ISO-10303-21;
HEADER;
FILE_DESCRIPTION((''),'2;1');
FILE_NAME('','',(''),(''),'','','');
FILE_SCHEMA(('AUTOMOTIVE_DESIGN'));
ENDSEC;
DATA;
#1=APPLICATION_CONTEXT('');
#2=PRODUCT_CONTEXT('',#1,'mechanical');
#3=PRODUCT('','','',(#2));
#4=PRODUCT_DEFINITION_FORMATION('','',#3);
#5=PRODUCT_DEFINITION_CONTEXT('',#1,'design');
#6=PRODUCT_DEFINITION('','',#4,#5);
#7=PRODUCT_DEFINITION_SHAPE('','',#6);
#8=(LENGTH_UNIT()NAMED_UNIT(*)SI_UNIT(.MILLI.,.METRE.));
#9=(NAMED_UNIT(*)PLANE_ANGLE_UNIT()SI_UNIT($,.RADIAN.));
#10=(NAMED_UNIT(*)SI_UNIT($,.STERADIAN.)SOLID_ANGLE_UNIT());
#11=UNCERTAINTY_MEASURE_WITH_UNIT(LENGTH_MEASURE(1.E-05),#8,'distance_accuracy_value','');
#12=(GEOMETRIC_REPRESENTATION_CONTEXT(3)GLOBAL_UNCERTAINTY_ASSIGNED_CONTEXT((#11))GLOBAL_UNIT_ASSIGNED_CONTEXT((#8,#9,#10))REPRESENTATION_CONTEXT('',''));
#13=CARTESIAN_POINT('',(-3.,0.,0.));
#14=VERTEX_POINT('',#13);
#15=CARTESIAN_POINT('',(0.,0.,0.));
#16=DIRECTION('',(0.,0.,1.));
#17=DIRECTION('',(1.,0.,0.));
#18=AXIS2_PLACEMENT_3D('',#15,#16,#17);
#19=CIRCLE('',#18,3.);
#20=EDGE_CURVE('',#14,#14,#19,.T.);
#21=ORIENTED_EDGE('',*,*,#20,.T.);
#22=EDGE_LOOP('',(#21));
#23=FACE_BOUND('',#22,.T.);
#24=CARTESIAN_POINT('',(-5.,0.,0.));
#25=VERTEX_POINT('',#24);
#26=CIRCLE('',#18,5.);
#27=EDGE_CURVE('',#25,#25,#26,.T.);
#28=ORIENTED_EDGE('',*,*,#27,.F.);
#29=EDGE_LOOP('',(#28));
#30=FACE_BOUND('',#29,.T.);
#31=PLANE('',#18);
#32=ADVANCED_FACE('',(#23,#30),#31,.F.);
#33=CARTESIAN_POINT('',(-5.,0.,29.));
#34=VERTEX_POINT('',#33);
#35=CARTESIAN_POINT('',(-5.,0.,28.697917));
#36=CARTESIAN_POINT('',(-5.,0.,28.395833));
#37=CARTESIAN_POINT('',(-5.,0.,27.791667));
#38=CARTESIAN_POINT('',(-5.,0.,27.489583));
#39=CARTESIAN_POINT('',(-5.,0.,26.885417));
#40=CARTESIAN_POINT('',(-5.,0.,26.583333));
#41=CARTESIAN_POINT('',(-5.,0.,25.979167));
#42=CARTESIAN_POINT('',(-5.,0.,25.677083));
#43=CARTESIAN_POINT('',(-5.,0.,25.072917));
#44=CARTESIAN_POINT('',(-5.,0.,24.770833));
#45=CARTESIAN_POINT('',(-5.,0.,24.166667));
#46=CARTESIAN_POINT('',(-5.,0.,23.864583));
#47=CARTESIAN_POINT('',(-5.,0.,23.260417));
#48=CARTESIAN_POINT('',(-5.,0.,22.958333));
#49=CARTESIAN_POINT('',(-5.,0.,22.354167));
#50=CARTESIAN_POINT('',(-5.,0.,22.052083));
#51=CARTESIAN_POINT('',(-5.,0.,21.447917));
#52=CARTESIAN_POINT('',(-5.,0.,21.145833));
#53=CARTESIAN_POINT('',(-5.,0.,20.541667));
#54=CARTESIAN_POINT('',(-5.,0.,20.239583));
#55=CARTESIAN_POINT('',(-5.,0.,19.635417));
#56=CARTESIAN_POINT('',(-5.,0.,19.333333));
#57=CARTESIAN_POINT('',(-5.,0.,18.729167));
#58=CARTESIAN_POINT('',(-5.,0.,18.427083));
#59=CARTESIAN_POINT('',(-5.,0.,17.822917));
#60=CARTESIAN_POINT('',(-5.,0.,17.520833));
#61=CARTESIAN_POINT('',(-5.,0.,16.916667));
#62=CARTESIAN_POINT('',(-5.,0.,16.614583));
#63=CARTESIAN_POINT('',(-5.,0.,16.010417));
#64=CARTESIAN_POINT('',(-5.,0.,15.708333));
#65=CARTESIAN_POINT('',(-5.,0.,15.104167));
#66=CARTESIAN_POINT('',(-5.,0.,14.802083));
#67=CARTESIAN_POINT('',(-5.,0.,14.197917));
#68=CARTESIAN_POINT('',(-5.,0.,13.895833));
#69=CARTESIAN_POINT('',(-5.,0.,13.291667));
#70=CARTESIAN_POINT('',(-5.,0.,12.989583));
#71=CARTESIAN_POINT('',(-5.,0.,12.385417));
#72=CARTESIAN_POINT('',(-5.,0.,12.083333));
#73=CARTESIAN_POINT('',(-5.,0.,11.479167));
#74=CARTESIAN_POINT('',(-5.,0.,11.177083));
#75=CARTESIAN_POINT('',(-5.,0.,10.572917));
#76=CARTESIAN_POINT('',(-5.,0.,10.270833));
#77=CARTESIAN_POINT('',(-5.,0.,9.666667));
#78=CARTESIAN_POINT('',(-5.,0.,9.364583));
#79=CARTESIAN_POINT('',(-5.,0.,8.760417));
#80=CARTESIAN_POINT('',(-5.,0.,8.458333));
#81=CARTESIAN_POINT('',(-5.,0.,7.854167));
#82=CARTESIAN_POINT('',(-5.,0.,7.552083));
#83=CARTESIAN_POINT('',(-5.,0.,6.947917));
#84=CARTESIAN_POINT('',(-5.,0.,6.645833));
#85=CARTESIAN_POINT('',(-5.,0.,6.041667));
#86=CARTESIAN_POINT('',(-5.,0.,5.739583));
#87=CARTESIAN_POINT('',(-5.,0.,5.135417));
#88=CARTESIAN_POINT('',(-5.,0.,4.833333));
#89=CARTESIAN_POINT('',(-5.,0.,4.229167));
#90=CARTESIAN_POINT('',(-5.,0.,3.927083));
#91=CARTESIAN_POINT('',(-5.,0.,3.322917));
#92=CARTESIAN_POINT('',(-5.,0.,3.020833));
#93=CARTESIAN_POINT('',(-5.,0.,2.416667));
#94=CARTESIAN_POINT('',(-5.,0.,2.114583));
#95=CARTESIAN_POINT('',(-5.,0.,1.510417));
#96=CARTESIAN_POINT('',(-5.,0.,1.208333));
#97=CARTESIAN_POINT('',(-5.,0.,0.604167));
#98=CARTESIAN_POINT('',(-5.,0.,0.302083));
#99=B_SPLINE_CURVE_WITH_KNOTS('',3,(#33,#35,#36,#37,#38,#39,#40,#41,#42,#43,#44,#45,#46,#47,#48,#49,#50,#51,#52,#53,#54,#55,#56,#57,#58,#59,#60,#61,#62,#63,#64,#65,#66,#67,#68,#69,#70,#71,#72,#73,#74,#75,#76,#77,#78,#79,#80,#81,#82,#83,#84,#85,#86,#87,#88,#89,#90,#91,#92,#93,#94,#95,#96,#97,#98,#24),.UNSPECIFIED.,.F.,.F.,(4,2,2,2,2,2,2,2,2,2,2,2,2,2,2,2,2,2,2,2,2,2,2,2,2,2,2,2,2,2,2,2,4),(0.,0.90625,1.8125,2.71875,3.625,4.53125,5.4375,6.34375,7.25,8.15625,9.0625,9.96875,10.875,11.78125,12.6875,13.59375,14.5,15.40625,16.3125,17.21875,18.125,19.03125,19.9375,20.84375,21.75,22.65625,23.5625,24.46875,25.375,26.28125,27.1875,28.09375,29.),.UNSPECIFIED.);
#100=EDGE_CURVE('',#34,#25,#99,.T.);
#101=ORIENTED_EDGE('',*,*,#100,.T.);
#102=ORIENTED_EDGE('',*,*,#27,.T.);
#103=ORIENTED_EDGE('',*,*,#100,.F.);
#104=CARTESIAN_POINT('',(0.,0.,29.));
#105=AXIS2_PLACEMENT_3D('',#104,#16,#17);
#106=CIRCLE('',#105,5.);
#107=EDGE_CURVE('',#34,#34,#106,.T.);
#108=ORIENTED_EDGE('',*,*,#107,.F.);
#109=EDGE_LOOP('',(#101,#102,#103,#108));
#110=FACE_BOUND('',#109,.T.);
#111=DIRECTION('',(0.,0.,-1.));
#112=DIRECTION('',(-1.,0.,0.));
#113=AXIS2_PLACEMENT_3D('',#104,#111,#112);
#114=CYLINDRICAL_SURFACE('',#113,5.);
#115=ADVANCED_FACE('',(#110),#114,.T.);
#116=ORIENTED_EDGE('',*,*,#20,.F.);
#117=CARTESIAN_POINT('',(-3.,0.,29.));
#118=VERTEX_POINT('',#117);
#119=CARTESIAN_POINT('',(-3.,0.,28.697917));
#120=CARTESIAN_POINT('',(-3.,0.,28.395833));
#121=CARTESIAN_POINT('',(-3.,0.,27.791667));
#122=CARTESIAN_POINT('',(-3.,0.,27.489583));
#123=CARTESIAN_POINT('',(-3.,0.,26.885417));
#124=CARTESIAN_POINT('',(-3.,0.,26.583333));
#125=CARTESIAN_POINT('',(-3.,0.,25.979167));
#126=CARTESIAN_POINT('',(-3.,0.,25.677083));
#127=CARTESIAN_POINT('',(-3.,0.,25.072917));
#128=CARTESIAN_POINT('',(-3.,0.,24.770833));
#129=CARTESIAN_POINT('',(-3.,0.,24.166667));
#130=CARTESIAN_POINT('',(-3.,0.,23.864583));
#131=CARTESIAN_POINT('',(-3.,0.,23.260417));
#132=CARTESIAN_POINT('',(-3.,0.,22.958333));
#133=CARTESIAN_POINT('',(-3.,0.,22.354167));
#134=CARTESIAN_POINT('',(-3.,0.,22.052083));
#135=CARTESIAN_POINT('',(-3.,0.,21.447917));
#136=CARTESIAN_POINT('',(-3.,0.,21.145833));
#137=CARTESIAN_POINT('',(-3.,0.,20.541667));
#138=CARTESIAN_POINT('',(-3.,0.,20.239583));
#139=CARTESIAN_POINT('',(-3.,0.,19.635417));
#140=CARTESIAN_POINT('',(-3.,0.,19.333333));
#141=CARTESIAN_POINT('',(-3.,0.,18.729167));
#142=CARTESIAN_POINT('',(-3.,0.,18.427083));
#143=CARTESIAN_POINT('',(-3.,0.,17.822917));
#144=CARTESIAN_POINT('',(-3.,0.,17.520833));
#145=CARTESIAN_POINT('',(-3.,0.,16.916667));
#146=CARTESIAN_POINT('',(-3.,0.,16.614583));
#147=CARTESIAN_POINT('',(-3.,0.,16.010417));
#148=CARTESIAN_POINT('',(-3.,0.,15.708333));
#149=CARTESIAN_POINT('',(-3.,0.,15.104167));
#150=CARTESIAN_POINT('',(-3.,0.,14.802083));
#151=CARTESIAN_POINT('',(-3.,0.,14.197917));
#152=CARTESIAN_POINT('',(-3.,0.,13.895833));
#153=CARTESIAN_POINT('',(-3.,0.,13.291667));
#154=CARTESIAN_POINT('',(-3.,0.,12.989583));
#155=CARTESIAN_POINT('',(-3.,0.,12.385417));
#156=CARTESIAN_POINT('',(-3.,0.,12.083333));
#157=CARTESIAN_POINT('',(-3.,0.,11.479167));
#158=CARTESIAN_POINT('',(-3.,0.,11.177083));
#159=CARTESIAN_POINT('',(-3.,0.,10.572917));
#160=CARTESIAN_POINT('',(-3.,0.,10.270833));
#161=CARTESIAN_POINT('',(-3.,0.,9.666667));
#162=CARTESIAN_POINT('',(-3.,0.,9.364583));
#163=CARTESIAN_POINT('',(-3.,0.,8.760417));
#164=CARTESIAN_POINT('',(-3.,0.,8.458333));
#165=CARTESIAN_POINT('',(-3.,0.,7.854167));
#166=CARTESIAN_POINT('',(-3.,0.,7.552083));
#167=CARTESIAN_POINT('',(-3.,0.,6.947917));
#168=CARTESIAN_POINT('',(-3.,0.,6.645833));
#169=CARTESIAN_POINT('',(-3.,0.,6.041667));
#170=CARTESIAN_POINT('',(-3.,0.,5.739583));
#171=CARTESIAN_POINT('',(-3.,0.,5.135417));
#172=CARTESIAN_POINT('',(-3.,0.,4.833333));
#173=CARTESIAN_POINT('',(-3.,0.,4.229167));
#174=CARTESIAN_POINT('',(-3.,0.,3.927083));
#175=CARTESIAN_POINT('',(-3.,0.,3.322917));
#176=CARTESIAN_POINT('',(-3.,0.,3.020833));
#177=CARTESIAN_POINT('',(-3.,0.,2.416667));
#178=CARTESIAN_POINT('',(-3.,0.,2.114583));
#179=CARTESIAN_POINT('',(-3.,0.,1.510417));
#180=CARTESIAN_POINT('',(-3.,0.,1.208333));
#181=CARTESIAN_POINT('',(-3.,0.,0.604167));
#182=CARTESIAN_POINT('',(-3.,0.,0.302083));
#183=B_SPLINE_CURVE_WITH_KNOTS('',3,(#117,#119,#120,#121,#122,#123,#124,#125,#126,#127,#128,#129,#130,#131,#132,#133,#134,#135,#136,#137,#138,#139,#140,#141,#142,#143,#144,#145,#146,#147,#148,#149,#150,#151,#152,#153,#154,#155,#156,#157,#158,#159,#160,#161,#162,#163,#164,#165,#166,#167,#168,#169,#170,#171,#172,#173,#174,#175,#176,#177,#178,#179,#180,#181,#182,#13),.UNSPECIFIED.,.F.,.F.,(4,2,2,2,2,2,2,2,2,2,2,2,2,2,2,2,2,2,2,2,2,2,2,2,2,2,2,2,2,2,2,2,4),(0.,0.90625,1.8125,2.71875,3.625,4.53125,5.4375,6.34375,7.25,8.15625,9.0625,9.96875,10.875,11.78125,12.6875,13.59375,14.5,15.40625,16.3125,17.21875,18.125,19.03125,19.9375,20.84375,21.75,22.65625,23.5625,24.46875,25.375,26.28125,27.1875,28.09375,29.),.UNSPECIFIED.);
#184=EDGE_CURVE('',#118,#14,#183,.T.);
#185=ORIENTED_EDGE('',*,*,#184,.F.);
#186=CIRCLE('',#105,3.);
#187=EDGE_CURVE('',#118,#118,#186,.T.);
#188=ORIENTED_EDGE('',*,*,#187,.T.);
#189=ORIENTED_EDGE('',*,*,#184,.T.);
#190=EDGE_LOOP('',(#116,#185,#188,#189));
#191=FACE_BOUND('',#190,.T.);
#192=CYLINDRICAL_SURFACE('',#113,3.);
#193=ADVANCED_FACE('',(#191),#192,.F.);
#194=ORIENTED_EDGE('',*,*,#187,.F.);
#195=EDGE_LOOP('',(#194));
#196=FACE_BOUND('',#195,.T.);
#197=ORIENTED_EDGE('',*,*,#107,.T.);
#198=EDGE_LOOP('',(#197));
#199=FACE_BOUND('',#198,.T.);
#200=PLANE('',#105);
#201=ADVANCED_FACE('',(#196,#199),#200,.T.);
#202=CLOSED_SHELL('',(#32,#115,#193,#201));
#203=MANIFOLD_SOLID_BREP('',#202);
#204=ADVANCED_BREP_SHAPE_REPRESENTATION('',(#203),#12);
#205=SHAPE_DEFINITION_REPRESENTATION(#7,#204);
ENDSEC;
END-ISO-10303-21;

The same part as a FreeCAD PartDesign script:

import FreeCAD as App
import Part
import Sketcher

doc = App.newDocument("Part")
body = doc.addObject("PartDesign::Body", "Body")

# Sketch on XY plane
sketch1 = doc.addObject("Sketcher::SketchObject", "Sketch")
body.addObject(sketch1)
sketch1.AttachmentSupport = (doc.XY_Plane, [""])
sketch1.MapMode = "FlatFace"
sketch1.addGeometry([
    Part.Circle(App.Vector(0, 0, 0), App.Vector(0, 0, 1), 5),
    Part.Circle(App.Vector(0, 0, 0), App.Vector(0, 0, 1), 3),
], False)
sketch1.addConstraint([
    Sketcher.Constraint("Coincident", 0, 3, -1, 1),
    Sketcher.Constraint("Coincident", 1, 3, -1, 1),
    Sketcher.Constraint("Diameter", 0, 10.0),
    Sketcher.Constraint("Diameter", 1, 6.0),
])
pad1 = doc.addObject("PartDesign::Pad", "Pad")
body.addObject(pad1)
pad1.Profile = sketch1
pad1.Length = 29

doc.recompute()
